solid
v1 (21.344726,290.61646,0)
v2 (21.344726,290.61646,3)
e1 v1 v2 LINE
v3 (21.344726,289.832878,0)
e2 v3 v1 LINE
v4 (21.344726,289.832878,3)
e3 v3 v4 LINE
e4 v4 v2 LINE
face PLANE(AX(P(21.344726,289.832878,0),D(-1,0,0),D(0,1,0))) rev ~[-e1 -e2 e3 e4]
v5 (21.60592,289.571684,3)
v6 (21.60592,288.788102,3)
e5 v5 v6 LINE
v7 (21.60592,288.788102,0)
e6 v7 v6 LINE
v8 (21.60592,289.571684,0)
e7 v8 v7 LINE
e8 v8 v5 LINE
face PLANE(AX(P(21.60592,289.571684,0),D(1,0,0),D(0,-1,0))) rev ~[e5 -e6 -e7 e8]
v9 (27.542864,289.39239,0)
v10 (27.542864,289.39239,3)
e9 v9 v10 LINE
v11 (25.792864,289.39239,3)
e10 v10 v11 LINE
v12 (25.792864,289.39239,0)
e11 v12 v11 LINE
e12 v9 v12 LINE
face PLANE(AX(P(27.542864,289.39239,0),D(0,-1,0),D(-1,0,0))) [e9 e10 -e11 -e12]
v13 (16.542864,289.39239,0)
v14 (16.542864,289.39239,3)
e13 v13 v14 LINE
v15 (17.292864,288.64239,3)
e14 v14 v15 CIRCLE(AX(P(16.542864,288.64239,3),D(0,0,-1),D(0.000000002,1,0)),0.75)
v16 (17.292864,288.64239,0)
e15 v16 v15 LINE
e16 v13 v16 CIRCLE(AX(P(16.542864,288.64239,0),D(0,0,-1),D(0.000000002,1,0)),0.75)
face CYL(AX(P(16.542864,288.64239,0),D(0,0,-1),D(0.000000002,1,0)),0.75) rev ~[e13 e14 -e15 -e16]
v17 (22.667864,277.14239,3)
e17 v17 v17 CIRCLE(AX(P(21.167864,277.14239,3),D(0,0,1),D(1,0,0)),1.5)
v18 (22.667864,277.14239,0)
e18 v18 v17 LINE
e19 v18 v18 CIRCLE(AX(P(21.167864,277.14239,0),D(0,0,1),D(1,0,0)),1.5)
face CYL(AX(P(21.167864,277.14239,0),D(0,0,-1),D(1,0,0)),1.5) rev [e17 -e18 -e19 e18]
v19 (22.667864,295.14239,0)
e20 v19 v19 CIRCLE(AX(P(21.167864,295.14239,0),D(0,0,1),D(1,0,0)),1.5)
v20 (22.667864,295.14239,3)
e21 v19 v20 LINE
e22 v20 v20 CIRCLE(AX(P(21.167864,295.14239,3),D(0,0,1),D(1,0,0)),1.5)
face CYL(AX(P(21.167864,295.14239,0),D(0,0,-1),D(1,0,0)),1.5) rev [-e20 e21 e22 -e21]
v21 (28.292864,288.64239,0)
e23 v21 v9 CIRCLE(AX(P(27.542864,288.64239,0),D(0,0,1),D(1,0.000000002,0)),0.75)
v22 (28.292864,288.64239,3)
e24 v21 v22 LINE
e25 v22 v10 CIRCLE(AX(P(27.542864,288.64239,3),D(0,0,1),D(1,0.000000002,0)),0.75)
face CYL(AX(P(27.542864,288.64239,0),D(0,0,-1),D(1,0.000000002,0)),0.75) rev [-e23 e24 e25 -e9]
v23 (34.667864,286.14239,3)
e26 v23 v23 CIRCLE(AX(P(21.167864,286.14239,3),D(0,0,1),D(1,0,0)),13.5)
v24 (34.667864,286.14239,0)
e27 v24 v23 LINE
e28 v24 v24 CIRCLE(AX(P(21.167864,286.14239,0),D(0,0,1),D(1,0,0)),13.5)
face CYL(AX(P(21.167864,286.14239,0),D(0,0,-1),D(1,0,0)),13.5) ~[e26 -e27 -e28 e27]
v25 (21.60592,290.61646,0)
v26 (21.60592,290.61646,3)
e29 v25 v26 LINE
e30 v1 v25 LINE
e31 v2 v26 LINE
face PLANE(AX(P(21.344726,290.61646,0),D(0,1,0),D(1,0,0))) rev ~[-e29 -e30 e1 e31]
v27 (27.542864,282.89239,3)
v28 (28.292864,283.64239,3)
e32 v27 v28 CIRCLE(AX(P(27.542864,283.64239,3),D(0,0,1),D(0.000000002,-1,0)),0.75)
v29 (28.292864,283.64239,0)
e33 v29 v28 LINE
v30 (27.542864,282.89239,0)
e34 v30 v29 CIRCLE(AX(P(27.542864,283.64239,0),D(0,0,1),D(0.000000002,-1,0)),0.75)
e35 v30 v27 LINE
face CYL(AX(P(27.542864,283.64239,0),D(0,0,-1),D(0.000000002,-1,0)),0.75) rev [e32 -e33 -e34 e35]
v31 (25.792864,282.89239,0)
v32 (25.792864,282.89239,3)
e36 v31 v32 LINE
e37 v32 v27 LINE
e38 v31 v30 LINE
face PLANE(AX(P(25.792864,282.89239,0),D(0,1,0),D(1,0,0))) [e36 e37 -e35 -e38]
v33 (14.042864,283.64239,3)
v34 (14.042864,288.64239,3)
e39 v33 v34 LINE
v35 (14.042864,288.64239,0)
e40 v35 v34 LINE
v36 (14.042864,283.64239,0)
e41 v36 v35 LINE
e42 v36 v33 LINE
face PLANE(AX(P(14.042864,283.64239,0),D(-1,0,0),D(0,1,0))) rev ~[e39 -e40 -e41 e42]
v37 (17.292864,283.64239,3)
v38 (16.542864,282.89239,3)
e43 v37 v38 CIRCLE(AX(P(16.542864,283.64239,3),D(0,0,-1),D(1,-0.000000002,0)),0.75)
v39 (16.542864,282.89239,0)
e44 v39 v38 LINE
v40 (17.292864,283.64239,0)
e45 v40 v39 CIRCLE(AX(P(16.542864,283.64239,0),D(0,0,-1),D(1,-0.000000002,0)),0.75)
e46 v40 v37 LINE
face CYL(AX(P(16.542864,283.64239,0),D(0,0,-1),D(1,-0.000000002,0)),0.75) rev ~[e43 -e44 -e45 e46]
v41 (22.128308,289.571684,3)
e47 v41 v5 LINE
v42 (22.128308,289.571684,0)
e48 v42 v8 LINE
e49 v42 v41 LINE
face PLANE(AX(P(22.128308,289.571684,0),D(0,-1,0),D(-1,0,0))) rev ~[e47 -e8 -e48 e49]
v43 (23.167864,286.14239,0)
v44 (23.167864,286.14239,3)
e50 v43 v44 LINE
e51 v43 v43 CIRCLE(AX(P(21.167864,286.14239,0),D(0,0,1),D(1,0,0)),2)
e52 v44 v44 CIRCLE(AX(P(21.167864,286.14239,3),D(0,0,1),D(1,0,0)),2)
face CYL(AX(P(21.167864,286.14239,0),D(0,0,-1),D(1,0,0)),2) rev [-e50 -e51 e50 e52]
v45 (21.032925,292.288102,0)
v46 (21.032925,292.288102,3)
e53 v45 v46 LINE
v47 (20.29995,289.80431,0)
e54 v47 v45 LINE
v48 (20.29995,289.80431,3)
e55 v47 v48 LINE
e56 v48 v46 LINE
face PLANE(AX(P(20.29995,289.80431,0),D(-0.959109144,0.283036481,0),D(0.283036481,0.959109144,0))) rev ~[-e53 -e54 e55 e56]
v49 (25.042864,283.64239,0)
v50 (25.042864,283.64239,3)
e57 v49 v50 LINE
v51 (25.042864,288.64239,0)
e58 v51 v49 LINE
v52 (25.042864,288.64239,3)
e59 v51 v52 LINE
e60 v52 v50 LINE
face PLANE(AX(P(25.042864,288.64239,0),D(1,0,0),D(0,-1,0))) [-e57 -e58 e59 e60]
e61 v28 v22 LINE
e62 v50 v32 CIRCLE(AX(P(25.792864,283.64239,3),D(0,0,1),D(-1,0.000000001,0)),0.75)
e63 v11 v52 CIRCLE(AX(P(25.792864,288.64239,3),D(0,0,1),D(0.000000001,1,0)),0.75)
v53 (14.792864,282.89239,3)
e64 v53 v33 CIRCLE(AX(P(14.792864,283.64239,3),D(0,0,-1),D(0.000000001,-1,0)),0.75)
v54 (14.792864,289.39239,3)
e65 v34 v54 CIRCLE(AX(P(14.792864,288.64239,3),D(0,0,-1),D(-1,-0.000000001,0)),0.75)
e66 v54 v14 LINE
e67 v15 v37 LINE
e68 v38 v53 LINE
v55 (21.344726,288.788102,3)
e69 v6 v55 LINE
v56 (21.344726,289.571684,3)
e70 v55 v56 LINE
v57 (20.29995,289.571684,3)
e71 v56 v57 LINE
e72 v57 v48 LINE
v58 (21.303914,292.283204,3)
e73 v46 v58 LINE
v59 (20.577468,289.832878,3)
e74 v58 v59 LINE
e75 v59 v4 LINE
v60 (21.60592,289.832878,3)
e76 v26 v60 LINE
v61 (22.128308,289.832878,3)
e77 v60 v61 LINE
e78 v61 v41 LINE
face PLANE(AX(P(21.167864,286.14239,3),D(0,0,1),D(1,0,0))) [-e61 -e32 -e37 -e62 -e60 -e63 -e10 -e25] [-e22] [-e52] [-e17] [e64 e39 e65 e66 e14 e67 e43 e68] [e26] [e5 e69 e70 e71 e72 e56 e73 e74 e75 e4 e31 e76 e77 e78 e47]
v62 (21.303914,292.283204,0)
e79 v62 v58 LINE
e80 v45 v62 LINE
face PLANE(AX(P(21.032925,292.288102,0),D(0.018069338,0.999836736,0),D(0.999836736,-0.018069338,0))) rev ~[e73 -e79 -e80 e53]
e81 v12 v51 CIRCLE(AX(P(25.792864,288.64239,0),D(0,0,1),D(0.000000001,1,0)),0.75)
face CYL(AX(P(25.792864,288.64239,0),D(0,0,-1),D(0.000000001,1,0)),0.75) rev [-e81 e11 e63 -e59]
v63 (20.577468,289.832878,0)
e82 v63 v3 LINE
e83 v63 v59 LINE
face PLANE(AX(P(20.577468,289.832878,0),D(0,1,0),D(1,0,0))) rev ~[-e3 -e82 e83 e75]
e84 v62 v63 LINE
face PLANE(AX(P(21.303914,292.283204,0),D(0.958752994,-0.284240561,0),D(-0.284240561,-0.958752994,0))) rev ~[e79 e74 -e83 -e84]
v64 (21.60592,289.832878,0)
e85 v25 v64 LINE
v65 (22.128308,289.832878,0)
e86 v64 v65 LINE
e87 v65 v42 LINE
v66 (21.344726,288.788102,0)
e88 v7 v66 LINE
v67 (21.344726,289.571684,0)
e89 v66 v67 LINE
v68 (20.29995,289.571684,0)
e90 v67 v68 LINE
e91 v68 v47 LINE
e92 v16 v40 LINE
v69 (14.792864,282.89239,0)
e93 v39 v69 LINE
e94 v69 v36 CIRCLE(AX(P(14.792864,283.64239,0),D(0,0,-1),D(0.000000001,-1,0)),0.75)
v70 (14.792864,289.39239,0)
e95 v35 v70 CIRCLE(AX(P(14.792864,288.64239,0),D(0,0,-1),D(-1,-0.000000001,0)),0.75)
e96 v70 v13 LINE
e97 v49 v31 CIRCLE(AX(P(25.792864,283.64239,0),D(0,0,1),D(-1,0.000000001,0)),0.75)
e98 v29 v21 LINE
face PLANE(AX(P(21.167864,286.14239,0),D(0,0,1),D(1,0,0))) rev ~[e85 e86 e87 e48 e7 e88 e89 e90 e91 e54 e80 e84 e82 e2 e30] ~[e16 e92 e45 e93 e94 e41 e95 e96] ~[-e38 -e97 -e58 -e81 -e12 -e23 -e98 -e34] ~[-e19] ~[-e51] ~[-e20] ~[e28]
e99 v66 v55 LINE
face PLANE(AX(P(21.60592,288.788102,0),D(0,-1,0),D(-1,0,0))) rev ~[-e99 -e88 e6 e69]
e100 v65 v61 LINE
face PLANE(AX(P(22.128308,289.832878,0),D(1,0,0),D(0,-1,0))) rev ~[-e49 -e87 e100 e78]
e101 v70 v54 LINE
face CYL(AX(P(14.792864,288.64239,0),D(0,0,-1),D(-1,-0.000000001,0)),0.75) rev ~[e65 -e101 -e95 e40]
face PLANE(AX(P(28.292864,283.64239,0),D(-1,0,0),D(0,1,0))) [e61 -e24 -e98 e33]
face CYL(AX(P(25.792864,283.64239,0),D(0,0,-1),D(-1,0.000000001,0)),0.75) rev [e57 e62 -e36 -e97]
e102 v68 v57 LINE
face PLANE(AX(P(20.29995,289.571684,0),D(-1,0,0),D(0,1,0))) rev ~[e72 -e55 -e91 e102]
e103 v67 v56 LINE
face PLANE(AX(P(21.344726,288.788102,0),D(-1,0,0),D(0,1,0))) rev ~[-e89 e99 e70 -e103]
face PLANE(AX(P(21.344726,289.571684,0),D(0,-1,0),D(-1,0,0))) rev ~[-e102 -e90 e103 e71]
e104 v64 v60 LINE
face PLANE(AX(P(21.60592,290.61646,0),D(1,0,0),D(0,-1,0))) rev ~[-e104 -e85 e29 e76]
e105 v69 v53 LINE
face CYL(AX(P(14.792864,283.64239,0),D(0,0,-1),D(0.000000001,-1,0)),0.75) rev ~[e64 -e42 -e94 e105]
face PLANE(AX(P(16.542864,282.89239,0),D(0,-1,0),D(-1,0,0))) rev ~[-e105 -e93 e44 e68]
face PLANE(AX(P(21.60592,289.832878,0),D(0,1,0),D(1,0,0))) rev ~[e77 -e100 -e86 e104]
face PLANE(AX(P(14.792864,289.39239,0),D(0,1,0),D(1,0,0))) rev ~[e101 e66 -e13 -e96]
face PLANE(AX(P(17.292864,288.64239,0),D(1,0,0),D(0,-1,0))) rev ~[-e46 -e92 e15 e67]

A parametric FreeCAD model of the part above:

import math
import FreeCAD as App
import Part
import Sketcher


def add_polygon(sketch, points):
    """Adds a closed chain of lines whose ends are joined by coincident constraints."""
    first, n = sketch.GeometryCount, len(points)
    for a, b in zip(points, points[1:] + points[:1]):
        sketch.addGeometry(Part.LineSegment(App.Vector(*a, 0), App.Vector(*b, 0)), False)
    for i in range(n):
        sketch.addConstraint(Sketcher.Constraint("Coincident", first + i, 2, first + (i + 1) % n, 1))

doc = App.newDocument("Part")
body = doc.addObject("PartDesign::Body", "Body")

sketch1 = doc.addObject("Sketcher::SketchObject", "Sketch")
body.addObject(sketch1)
sketch1.AttachmentSupport = (doc.XY_Plane, [""])
sketch1.MapMode = "FlatFace"
sketch1.addGeometry(Part.Circle(App.Vector(21.167864, 286.14239, 0), App.Vector(0, 0, 1), 13.5), False)
sketch1.addGeometry(Part.Circle(App.Vector(21.167864, 277.14239, 0), App.Vector(0, 0, 1), 1.5), False)
sketch1.addGeometry(Part.ArcOfCircle(Part.Circle(App.Vector(14.792864, 288.64239, 0), App.Vector(0, 0, 1), 0.75), math.radians(90), math.radians(180)), False)
sketch1.addGeometry(Part.LineSegment(App.Vector(14.792864, 289.39239, 0), App.Vector(16.542864, 289.39239, 0)), False)
sketch1.addGeometry(Part.ArcOfCircle(Part.Circle(App.Vector(16.542864, 288.64239, 0), App.Vector(0, 0, 1), 0.75), math.radians(0), math.radians(90)), False)
sketch1.addGeometry(Part.LineSegment(App.Vector(17.292864, 288.64239, 0), App.Vector(17.292864, 283.64239, 0)), False)
sketch1.addGeometry(Part.ArcOfCircle(Part.Circle(App.Vector(16.542864, 283.64239, 0), App.Vector(0, 0, 1), 0.75), math.radians(-90), math.radians(0)), False)
sketch1.addGeometry(Part.LineSegment(App.Vector(16.542864, 282.89239, 0), App.Vector(14.792864, 282.89239, 0)), False)
sketch1.addGeometry(Part.ArcOfCircle(Part.Circle(App.Vector(14.792864, 283.64239, 0), App.Vector(0, 0, 1), 0.75), math.radians(180), math.radians(270)), False)
sketch1.addGeometry(Part.LineSegment(App.Vector(14.042864, 283.64239, 0), App.Vector(14.042864, 288.64239, 0)), False)
sketch1.addGeometry(Part.Circle(App.Vector(21.167864, 286.14239, 0), App.Vector(0, 0, 1), 2), False)
sketch1.addGeometry(Part.Circle(App.Vector(21.167864, 295.14239, 0), App.Vector(0, 0, 1), 1.5), False)
add_polygon(sketch1, [(22.128308, 289.832878), (22.128308, 289.571684), (21.60592, 289.571684), (21.60592, 288.788102), (21.344726, 288.788102), (21.344726, 289.571684), (20.29995, 289.571684), (20.29995, 289.80431), (21.032925, 292.288102), (21.303914, 292.283204), (20.577468, 289.832878), (21.344726, 289.832878), (21.344726, 290.61646), (21.60592, 290.61646), (21.60592, 289.832878)])
sketch1.addGeometry(Part.LineSegment(App.Vector(25.792864, 289.39239, 0), App.Vector(27.542864, 289.39239, 0)), False)
sketch1.addGeometry(Part.ArcOfCircle(Part.Circle(App.Vector(27.542864, 288.64239, 0), App.Vector(0, 0, 1), 0.75), math.radians(0), math.radians(90)), False)
sketch1.addGeometry(Part.LineSegment(App.Vector(28.292864, 288.64239, 0), App.Vector(28.292864, 283.64239, 0)), False)
sketch1.addGeometry(Part.ArcOfCircle(Part.Circle(App.Vector(27.542864, 283.64239, 0), App.Vector(0, 0, 1), 0.75), math.radians(-90), math.radians(0)), False)
sketch1.addGeometry(Part.LineSegment(App.Vector(27.542864, 282.89239, 0), App.Vector(25.792864, 282.89239, 0)), False)
sketch1.addGeometry(Part.ArcOfCircle(Part.Circle(App.Vector(25.792864, 283.64239, 0), App.Vector(0, 0, 1), 0.75), math.radians(180), math.radians(270)), False)
sketch1.addGeometry(Part.LineSegment(App.Vector(25.042864, 283.64239, 0), App.Vector(25.042864, 288.64239, 0)), False)
sketch1.addGeometry(Part.ArcOfCircle(Part.Circle(App.Vector(25.792864, 288.64239, 0), App.Vector(0, 0, 1), 0.75), math.radians(90), math.radians(180)), False)
sketch1.addConstraint(Sketcher.Constraint("Tangent", 2, 1, 3, 1))
sketch1.addConstraint(Sketcher.Constraint("Tangent", 3, 2, 4, 2))
sketch1.addConstraint(Sketcher.Constraint("Tangent", 4, 1, 5, 1))
sketch1.addConstraint(Sketcher.Constraint("Tangent", 5, 2, 6, 2))
sketch1.addConstraint(Sketcher.Constraint("Tangent", 6, 1, 7, 1))
sketch1.addConstraint(Sketcher.Constraint("Tangent", 7, 2, 8, 2))
sketch1.addConstraint(Sketcher.Constraint("Tangent", 8, 1, 9, 1))
sketch1.addConstraint(Sketcher.Constraint("Tangent", 9, 2, 2, 2))
sketch1.addConstraint(Sketcher.Constraint("Tangent", 27, 2, 28, 2))
sketch1.addConstraint(Sketcher.Constraint("Tangent", 28, 1, 29, 1))
sketch1.addConstraint(Sketcher.Constraint("Tangent", 29, 2, 30, 2))
sketch1.addConstraint(Sketcher.Constraint("Tangent", 30, 1, 31, 1))
sketch1.addConstraint(Sketcher.Constraint("Tangent", 31, 2, 32, 2))
sketch1.addConstraint(Sketcher.Constraint("Tangent", 32, 1, 33, 1))
sketch1.addConstraint(Sketcher.Constraint("Tangent", 33, 2, 34, 2))
sketch1.addConstraint(Sketcher.Constraint("Tangent", 34, 1, 27, 1))
sketch1.addConstraint(Sketcher.Constraint("Horizontal", 3))
sketch1.addConstraint(Sketcher.Constraint("Vertical", 5))
sketch1.addConstraint(Sketcher.Constraint("Horizontal", 7))
sketch1.addConstraint(Sketcher.Constraint("Vertical", 9))
sketch1.addConstraint(Sketcher.Constraint("Vertical", 12))
sketch1.addConstraint(Sketcher.Constraint("Horizontal", 13))
sketch1.addConstraint(Sketcher.Constraint("Vertical", 14))
sketch1.addConstraint(Sketcher.Constraint("Horizontal", 15))
sketch1.addConstraint(Sketcher.Constraint("Vertical", 16))
sketch1.addConstraint(Sketcher.Constraint("Horizontal", 17))
sketch1.addConstraint(Sketcher.Constraint("Vertical", 18))
sketch1.addConstraint(Sketcher.Constraint("Horizontal", 22))
sketch1.addConstraint(Sketcher.Constraint("Vertical", 23))
sketch1.addConstraint(Sketcher.Constraint("Horizontal", 24))
sketch1.addConstraint(Sketcher.Constraint("Vertical", 25))
sketch1.addConstraint(Sketcher.Constraint("Horizontal", 26))
sketch1.addConstraint(Sketcher.Constraint("Horizontal", 27))
sketch1.addConstraint(Sketcher.Constraint("Vertical", 29))
sketch1.addConstraint(Sketcher.Constraint("Horizontal", 31))
sketch1.addConstraint(Sketcher.Constraint("Vertical", 33))
sketch1.addConstraint(Sketcher.Constraint("Coincident", 10, 3, 0, 3))
sketch1.addConstraint(Sketcher.Constraint("Equal", 2, 4))
sketch1.addConstraint(Sketcher.Constraint("Equal", 4, 6))
sketch1.addConstraint(Sketcher.Constraint("Equal", 6, 8))
sketch1.addConstraint(Sketcher.Constraint("Equal", 1, 11))
sketch1.addConstraint(Sketcher.Constraint("Equal", 8, 28))
sketch1.addConstraint(Sketcher.Constraint("Equal", 28, 30))
sketch1.addConstraint(Sketcher.Constraint("Equal", 30, 32))
sketch1.addConstraint(Sketcher.Constraint("Equal", 32, 34))
sketch1.addConstraint(Sketcher.Constraint("Horizontal", 4, 3, 28, 3))
sketch1.addConstraint(Sketcher.Constraint("Horizontal", 8, 3, 30, 3))
sketch1.addConstraint(Sketcher.Constraint("Horizontal", 13, 2, 16, 2))
sketch1.addConstraint(Sketcher.Constraint("Horizontal", 22, 2, 25, 2))
sketch1.addConstraint(Sketcher.Constraint("Vertical", 0, 3, 1, 3))
sketch1.addConstraint(Sketcher.Constraint("Vertical", 10, 3, 11, 3))
sketch1.addConstraint(Sketcher.Constraint("Vertical", 16, 2, 22, 2))
sketch1.addConstraint(Sketcher.Constraint("Vertical", 14, 2, 24, 2))
sketch1.addConstraint(Sketcher.Constraint("Equal", 7, 27))
sketch1.addConstraint(Sketcher.Constraint("Equal", 24, 12))
sketch1.addConstraint(Sketcher.Constraint("Equal", 16, 23))
sketch1.addConstraint(Sketcher.Constraint("Diameter", 0, 27.0))
sketch1.addConstraint(Sketcher.Constraint("Diameter", 1, 3.0))
sketch1.addConstraint(Sketcher.Constraint("Diameter", 10, 4.0))
sketch1.addConstraint(Sketcher.Constraint("DistanceY", 5, 2, 5, 1, 5.0))
sketch1.addConstraint(Sketcher.Constraint("Radius", 2, 0.75))
sketch1.addConstraint(Sketcher.Constraint("DistanceY", 1, 3, 0, 3, 9.0))
sketch1.addConstraint(Sketcher.Constraint("DistanceY", 0, 3, 11, 3, 9.0))
sketch1.addConstraint(Sketcher.Constraint("DistanceX", 4, 3, 28, 3, 11.0))
sketch1.addConstraint(Sketcher.Constraint("DistanceX", 3, 1, 3, 2, 1.75))
sketch1.addConstraint(Sketcher.Constraint("DistanceY", 0, 3, 2, 3, 2.5))
sketch1.addConstraint(Sketcher.Constraint("DistanceX", 2, 3, 0, 3, 6.375))
sketch1.addConstraint(Sketcher.Constraint("DistanceX", 13, 2, 13, 1, 0.522388))
sketch1.addConstraint(Sketcher.Constraint("DistanceY", -1, 1, 14, 2, 288.788102))
sketch1.addConstraint(Sketcher.Constraint("DistanceY", -1, 1, 19, 2, 292.288102))
sketch1.addConstraint(Sketcher.Constraint("DistanceX", 19, 2, 16, 2, 0.3118))
sketch1.addConstraint(Sketcher.Constraint("DistanceX", 15, 2, 15, 1, 0.261194))
sketch1.addConstraint(Sketcher.Constraint("DistanceX", 17, 2, 17, 1, 1.044776))
sketch1.addConstraint(Sketcher.Constraint("DistanceX", 22, 1, 22, 2, 0.767257))
sketch1.addConstraint(Sketcher.Constraint("DistanceY", 14, 2, 14, 1, 0.783582))
sketch1.addConstraint(Sketcher.Constraint("DistanceY", 18, 1, 18, 2, 0.232626))
sketch1.addConstraint(Sketcher.Constraint("DistanceY", -1, 1, 0, 3, 286.14239))
sketch1.addConstraint(Sketcher.Constraint("DistanceX", -1, 1, 13, 2, 21.60592))
sketch1.addConstraint(Sketcher.Constraint("DistanceX", 0, 3, 15, 2, 0.176861))
sketch1.addConstraint(Sketcher.Constraint("DistanceX", 19, 2, 20, 2, 0.270989))
sketch1.addConstraint(Sketcher.Constraint("DistanceY", 16, 2, 20, 2, 2.711521))
pad1 = doc.addObject("PartDesign::Pad", "Pad")
body.addObject(pad1)
pad1.Profile = sketch1
pad1.Length = 3

doc.recompute()
